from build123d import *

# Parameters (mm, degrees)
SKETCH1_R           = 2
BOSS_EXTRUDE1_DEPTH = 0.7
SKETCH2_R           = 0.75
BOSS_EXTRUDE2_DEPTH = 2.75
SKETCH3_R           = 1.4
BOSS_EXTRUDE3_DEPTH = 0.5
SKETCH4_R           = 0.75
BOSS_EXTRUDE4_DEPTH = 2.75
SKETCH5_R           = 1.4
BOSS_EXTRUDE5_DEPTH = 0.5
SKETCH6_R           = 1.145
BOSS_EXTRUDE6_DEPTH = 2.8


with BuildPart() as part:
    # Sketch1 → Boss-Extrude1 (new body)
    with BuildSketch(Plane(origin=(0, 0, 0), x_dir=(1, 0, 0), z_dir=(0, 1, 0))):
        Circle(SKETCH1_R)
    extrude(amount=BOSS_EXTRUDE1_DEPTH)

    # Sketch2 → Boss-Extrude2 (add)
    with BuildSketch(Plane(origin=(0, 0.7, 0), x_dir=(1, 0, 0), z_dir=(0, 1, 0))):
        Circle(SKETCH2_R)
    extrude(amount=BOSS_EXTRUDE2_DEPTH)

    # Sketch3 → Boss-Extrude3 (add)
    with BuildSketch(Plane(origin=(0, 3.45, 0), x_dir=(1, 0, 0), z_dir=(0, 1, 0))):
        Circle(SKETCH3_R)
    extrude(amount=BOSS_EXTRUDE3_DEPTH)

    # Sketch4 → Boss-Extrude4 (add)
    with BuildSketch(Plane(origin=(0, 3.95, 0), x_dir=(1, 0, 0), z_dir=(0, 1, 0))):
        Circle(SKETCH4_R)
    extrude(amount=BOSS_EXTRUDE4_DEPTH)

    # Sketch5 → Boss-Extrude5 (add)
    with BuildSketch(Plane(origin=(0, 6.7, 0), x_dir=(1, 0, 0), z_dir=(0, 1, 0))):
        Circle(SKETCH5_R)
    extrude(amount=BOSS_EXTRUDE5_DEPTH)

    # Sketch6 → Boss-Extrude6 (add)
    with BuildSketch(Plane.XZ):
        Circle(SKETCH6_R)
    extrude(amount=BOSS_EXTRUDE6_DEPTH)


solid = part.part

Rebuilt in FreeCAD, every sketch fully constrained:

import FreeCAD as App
import Part
import Sketcher

V = App.Vector

doc = App.newDocument("Part")
body = doc.addObject("PartDesign::Body", "Body")

sketch1 = body.newObject("Sketcher::SketchObject", "Sketch")
sketch1.AttachmentSupport = (doc.getObject("XZ_Plane"), [""])
sketch1.MapMode = "FlatFace"
sketch1.addGeometry(Part.Circle(V(0, 0, 0), V(0, 0, 1), 2), False)
sketch1.addConstraint(Sketcher.Constraint("Coincident", 0, 3, -1, 1))
sketch1.addConstraint(Sketcher.Constraint("Diameter", 0, 4.0))
pad1 = body.newObject("PartDesign::Pad", "Pad")
pad1.Profile = sketch1
pad1.Length = 0.7
pad1.Reversed = True

sketch2 = body.newObject("Sketcher::SketchObject", "Sketch001")
sketch2.AttachmentSupport = (doc.getObject("XZ_Plane"), [""])
sketch2.MapMode = "FlatFace"
sketch2.AttachmentOffset = App.Placement(V(0, 0, -0.7), App.Rotation())
sketch2.addGeometry(Part.Circle(V(0, 0, 0), V(0, 0, 1), 0.8), False)
sketch2.addConstraint(Sketcher.Constraint("Coincident", 0, 3, -1, 1))
sketch2.addConstraint(Sketcher.Constraint("Diameter", 0, 1.5))
pad2 = body.newObject("PartDesign::Pad", "Pad001")
pad2.Profile = sketch2
pad2.Length = 2.75
pad2.Reversed = True

sketch3 = body.newObject("Sketcher::SketchObject", "Sketch002")
sketch3.AttachmentSupport = (doc.getObject("XZ_Plane"), [""])
sketch3.MapMode = "FlatFace"
sketch3.AttachmentOffset = App.Placement(V(0, 0, -3.45), App.Rotation())
sketch3.addGeometry(Part.Circle(V(0, 0, 0), V(0, 0, 1), 1.4), False)
sketch3.addConstraint(Sketcher.Constraint("Coincident", 0, 3, -1, 1))
sketch3.addConstraint(Sketcher.Constraint("Diameter", 0, 2.8))
pad3 = body.newObject("PartDesign::Pad", "Pad002")
pad3.Profile = sketch3
pad3.Length = 0.5
pad3.Reversed = True

sketch4 = body.newObject("Sketcher::SketchObject", "Sketch003")
sketch4.AttachmentSupport = (doc.getObject("XZ_Plane"), [""])
sketch4.MapMode = "FlatFace"
sketch4.AttachmentOffset = App.Placement(V(0, 0, -3.95), App.Rotation())
sketch4.addGeometry(Part.Circle(V(0, 0, 0), V(0, 0, 1), 0.8), False)
sketch4.addConstraint(Sketcher.Constraint("Coincident", 0, 3, -1, 1))
sketch4.addConstraint(Sketcher.Constraint("Diameter", 0, 1.5))
pad4 = body.newObject("PartDesign::Pad", "Pad003")
pad4.Profile = sketch4
pad4.Length = 2.75
pad4.Reversed = True

sketch5 = body.newObject("Sketcher::SketchObject", "Sketch004")
sketch5.AttachmentSupport = (doc.getObject("XZ_Plane"), [""])
sketch5.MapMode = "FlatFace"
sketch5.AttachmentOffset = App.Placement(V(0, 0, -6.7), App.Rotation())
sketch5.addGeometry(Part.Circle(V(0, 0, 0), V(0, 0, 1), 1.4), False)
sketch5.addConstraint(Sketcher.Constraint("Coincident", 0, 3, -1, 1))
sketch5.addConstraint(Sketcher.Constraint("Diameter", 0, 2.8))
pad5 = body.newObject("PartDesign::Pad", "Pad004")
pad5.Profile = sketch5
pad5.Length = 0.5
pad5.Reversed = True

sketch6 = body.newObject("Sketcher::SketchObject", "Sketch005")
sketch6.AttachmentSupport = (doc.getObject("XZ_Plane"), [""])
sketch6.MapMode = "FlatFace"
sketch6.addGeometry(Part.Circle(V(0, 0, 0), V(0, 0, 1), 1.1), False)
sketch6.addConstraint(Sketcher.Constraint("Coincident", 0, 3, -1, 1))
sketch6.addConstraint(Sketcher.Constraint("Diameter", 0, 2.29))
pad6 = body.newObject("PartDesign::Pad", "Pad005")
pad6.Profile = sketch6
pad6.Length = 2.8

doc.recompute()
